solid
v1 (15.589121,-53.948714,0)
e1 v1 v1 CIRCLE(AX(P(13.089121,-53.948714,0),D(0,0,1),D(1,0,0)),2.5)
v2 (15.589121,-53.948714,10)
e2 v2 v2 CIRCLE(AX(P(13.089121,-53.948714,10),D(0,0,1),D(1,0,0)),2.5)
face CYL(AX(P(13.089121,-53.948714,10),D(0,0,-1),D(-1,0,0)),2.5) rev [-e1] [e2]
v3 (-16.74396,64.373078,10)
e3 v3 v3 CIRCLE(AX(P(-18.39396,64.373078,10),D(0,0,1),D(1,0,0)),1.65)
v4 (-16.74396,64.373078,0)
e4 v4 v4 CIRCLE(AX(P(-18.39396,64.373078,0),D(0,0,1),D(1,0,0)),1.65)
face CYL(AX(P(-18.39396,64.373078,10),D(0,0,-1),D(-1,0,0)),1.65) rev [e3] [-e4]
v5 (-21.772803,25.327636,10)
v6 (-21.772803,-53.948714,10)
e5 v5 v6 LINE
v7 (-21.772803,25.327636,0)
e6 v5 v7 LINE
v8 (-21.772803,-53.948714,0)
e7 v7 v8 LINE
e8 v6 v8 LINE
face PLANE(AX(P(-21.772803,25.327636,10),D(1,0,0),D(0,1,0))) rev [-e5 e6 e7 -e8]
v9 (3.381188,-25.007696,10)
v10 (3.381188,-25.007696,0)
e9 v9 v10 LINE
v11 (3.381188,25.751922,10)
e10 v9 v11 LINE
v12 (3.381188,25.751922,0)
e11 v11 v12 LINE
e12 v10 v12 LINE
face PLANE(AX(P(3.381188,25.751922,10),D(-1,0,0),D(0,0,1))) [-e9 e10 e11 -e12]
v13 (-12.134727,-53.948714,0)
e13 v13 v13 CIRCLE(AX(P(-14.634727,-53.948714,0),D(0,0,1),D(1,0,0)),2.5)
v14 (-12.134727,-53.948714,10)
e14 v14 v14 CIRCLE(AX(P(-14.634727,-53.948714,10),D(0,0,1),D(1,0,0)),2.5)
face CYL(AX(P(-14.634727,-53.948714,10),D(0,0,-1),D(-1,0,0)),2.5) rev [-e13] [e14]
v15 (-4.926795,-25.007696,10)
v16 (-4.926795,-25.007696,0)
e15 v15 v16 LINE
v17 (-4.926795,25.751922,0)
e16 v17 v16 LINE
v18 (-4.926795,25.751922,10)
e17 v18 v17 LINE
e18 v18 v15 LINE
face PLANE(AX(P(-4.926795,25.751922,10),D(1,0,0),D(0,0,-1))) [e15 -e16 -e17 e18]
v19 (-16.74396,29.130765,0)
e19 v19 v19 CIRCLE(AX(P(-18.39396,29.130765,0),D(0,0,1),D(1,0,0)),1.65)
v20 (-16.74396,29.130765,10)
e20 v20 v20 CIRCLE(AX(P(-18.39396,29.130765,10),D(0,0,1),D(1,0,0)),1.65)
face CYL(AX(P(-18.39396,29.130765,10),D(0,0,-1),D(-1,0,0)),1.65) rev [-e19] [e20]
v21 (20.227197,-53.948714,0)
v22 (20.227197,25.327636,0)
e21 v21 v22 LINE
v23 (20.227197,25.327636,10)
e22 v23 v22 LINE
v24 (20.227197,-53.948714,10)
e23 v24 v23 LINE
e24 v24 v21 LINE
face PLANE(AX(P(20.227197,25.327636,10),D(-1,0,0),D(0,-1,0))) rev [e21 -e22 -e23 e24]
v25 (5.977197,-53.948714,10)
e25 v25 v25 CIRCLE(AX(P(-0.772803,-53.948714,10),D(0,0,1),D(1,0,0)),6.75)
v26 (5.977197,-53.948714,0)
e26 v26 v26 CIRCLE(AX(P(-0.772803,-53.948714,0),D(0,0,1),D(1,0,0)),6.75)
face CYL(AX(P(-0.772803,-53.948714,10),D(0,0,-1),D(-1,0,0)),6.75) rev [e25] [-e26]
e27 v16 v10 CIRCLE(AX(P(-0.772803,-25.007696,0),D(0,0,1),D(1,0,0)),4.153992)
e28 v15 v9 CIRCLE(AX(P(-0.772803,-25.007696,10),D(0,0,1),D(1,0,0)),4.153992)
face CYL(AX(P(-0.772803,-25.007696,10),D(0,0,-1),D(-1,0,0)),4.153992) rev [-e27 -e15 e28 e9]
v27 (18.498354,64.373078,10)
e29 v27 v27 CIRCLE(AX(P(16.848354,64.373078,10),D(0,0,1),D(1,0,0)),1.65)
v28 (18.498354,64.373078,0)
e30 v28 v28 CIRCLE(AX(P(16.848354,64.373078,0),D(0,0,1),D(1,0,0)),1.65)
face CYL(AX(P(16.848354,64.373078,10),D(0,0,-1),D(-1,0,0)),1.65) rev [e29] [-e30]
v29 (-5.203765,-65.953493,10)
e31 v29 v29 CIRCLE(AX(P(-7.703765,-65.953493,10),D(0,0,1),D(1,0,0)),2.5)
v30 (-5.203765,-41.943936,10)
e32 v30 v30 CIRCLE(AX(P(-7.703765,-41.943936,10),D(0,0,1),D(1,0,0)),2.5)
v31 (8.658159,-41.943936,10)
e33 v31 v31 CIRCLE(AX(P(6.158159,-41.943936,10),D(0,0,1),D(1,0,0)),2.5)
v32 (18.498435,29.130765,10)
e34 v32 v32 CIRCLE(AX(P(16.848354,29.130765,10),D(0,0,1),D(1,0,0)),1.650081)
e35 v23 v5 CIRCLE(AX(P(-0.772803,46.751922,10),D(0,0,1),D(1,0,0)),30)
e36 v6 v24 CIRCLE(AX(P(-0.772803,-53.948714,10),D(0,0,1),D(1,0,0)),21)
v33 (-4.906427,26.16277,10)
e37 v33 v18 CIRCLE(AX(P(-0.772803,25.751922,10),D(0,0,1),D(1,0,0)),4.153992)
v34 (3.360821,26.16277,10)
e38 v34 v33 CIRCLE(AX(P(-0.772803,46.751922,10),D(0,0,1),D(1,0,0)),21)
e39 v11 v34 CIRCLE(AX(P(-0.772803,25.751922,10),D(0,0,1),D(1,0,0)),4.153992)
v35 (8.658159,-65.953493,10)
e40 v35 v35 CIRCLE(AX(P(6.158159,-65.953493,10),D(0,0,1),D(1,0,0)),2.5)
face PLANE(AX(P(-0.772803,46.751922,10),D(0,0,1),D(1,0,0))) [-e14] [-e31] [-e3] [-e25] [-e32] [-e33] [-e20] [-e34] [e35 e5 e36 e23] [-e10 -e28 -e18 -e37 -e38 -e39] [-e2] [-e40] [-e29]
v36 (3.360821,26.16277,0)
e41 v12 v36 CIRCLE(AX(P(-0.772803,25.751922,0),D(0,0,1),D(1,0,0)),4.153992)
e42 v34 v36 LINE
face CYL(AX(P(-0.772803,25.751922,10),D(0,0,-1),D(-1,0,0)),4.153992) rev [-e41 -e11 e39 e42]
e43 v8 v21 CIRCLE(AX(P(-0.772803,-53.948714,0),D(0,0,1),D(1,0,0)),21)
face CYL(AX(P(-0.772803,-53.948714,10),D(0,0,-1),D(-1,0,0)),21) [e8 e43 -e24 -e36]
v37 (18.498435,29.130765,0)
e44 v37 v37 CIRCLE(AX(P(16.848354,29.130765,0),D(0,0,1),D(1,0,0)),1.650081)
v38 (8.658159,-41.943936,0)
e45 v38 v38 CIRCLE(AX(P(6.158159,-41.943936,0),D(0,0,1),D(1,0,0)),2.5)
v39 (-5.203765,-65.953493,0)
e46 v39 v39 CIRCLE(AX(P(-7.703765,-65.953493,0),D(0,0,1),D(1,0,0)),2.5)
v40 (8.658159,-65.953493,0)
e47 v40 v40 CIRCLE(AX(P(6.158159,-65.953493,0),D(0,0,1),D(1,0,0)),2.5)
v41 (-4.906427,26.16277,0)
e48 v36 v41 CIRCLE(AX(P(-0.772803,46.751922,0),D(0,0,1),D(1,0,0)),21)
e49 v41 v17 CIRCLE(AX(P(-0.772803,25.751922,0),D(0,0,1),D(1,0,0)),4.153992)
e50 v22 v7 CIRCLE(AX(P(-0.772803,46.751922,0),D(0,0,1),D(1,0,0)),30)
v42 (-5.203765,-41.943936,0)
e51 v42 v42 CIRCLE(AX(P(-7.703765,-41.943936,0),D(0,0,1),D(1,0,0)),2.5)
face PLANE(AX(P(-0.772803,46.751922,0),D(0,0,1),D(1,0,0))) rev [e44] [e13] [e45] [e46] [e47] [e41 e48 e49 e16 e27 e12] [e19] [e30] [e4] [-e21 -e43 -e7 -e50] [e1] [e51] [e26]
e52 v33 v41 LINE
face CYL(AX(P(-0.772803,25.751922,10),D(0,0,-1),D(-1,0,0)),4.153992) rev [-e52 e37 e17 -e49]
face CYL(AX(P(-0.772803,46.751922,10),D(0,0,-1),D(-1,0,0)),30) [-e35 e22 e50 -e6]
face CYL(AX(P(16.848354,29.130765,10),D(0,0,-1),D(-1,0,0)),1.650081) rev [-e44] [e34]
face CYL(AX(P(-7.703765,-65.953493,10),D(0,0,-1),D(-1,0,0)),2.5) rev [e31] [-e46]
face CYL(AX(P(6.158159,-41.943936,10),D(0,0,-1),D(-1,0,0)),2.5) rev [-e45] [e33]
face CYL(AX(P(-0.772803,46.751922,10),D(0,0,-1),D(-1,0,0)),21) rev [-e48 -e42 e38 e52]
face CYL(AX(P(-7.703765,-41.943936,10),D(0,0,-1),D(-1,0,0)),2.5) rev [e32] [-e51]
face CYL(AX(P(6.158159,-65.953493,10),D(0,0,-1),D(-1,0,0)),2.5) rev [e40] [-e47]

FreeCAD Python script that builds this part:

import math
import FreeCAD as App
import Part
import Sketcher

V = App.Vector
Q = App.Units.Quantity

doc = App.newDocument("Part")
body = doc.addObject("PartDesign::Body", "Body")

# Sketch on XY plane
sketch1 = body.newObject("Sketcher::SketchObject", "Sketch")
sketch1.AttachmentSupport = (doc.getObject("XY_Plane"), [""])
sketch1.MapMode = "FlatFace"
sketch1.addGeometry([
    Part.LineSegment(V(20.227197, -53.948714, 0), V(20.227197, 25.327636, 0)),  # 0
    Part.ArcOfCircle(Part.Circle(V(-0.772803, 46.751922, 0), V(0, 0, 1), 30), math.radians(-45.572996), math.radians(225.572996)),  # 1
    Part.LineSegment(V(-21.772803, 25.327636, 0), V(-21.772803, -53.948714, 0)),  # 2
    Part.ArcOfCircle(Part.Circle(V(-0.772803, -53.948714, 0), V(0, 0, 1), 21), math.radians(180), math.radians(360)),  # 3
    Part.Circle(V(13.089121, -53.948714, 0), V(0, 0, 1), 2.5),  # 4
    Part.Circle(V(6.158159, -65.953493, 0), V(0, 0, 1), 2.5),  # 5
    Part.Circle(V(6.158159, -41.943936, 0), V(0, 0, 1), 2.5),  # 6
    Part.Circle(V(-0.772803, -53.948714, 0), V(0, 0, 1), 6.75),  # 7
    Part.Circle(V(-7.703765, -65.953493, 0), V(0, 0, 1), 2.5),  # 8
    Part.Circle(V(-7.703765, -41.943936, 0), V(0, 0, 1), 2.5),  # 9
    Part.Circle(V(-14.634727, -53.948714, 0), V(0, 0, 1), 2.5),  # 10
    Part.Circle(V(16.848354, 29.130765, 0), V(0, 0, 1), 1.650081),  # 11
    Part.Circle(V(16.848354, 64.373078, 0), V(0, 0, 1), 1.65),  # 12
    Part.LineSegment(V(3.381188, 25.751922, 0), V(3.381188, -25.007696, 0)),  # 13
    Part.ArcOfCircle(Part.Circle(V(-0.772803, -25.007696, 0), V(0, 0, 1), 4.153992), math.radians(180), math.radians(360)),  # 14
    Part.LineSegment(V(-4.926795, -25.007696, 0), V(-4.926795, 25.751922, 0)),  # 15
    Part.ArcOfCircle(Part.Circle(V(-0.772803, 25.751922, 0), V(0, 0, 1), 4.153992), math.radians(174.323906), math.radians(180)),  # 16
    Part.ArcOfCircle(Part.Circle(V(-0.772803, 46.751922, 0), V(0, 0, 1), 21), math.radians(-78.647812), math.radians(258.647812)),  # 17
    Part.ArcOfCircle(Part.Circle(V(-0.772803, 25.751922, 0), V(0, 0, 1), 4.153991), math.radians(0), math.radians(5.676094)),  # 18
    Part.Circle(V(-18.39396, 29.130765, 0), V(0, 0, 1), 1.65),  # 19
    Part.Circle(V(-18.39396, 64.373078, 0), V(0, 0, 1), 1.65),  # 20
], False)
sketch1.addConstraint([
    Sketcher.Constraint("Coincident", 0, 2, 1, 1),
    Sketcher.Constraint("Coincident", 1, 2, 2, 1),
    Sketcher.Constraint("Tangent", 2, 2, 3, 1),
    Sketcher.Constraint("Tangent", 3, 2, 0, 1),
    Sketcher.Constraint("Tangent", 13, 2, 14, 2),
    Sketcher.Constraint("Tangent", 14, 1, 15, 1),
    Sketcher.Constraint("Tangent", 15, 2, 16, 2),
    Sketcher.Constraint("Coincident", 16, 1, 17, 2),
    Sketcher.Constraint("Coincident", 17, 1, 18, 2),
    Sketcher.Constraint("Tangent", 18, 1, 13, 1),
    Sketcher.Constraint("Vertical", 0),
    Sketcher.Constraint("Vertical", 2),
    Sketcher.Constraint("Vertical", 13),
    Sketcher.Constraint("Vertical", 15),
    Sketcher.Constraint("Coincident", 7, 3, 3, 3),
    Sketcher.Constraint("Coincident", 17, 3, 1, 3),
    Sketcher.Constraint("Coincident", 18, 3, 16, 3),
    Sketcher.Constraint("Equal", 4, 5),
    Sketcher.Constraint("Equal", 5, 6),
    Sketcher.Constraint("Equal", 6, 8),
    Sketcher.Constraint("Equal", 8, 9),
    Sketcher.Constraint("Equal", 9, 10),
    Sketcher.Constraint("Equal", 14, 16),
    Sketcher.Constraint("Equal", 3, 17),
    Sketcher.Constraint("Equal", 12, 19),
    Sketcher.Constraint("Equal", 19, 20),
    Sketcher.Constraint("Horizontal", 3, 3, 4, 3),
    Sketcher.Constraint("Horizontal", 5, 3, 8, 3),
    Sketcher.Constraint("Horizontal", 6, 3, 9, 3),
    Sketcher.Constraint("Horizontal", 7, 3, 10, 3),
    Sketcher.Constraint("Horizontal", 11, 3, 19, 3),
    Sketcher.Constraint("Horizontal", 12, 3, 20, 3),
    Sketcher.Constraint("Horizontal", 0, 2, 1, 2),
    Sketcher.Constraint("Horizontal", 16, 1, 17, 1),
    Sketcher.Constraint("Vertical", 5, 3, 6, 3),
    Sketcher.Constraint("Vertical", 8, 3, 9, 3),
    Sketcher.Constraint("Vertical", 11, 3, 12, 3),
    Sketcher.Constraint("Vertical", 19, 3, 20, 3),
    Sketcher.Constraint("Diameter", 4, Q("5 mm")),
    Sketcher.Constraint("Radius", 1, Q("30 mm")),
    Sketcher.Constraint("Radius", 3, Q("21 mm")),
    Sketcher.Constraint("Diameter", 7, Q("13.5 mm")),
    Sketcher.Constraint("Diameter", 12, Q("3.3 mm")),
    Sketcher.Constraint("DistanceY", 16, 3, 1, 3, Q("21 mm")),
    Sketcher.Constraint("Diameter", 11, Q("3.300162 mm")),
    Sketcher.Constraint("Radius", 14, Q("4.153992 mm")),
    Sketcher.Constraint("DistanceY", 0, 1, 0, 2, Q("79.27635 mm")),
    Sketcher.Constraint("DistanceY", 6, 3, 11, 3, Q("71.0747 mm")),
    Sketcher.Constraint("DistanceY", 13, 2, 13, 1, Q("50.759617 mm")),
    Sketcher.Constraint("DistanceY", -1, 1, 1, 3, Q("46.751922 mm")),
    Sketcher.Constraint("DistanceX", -1, 1, 4, 3, Q("13.089121 mm")),
    Sketcher.Constraint("DistanceX", -1, 1, 5, 3, Q("6.158159 mm")),
    Sketcher.Constraint("DistanceY", -1, 1, 12, 3, Q("64.373078 mm")),
    Sketcher.Constraint("DistanceX", 19, 3, -1, 1, Q("18.39396 mm")),
    Sketcher.Constraint("DistanceX", -1, 1, 13, 2, Q("3.381188 mm")),
    Sketcher.Constraint("DistanceY", 5, 3, 3, 3, Q("12.004779 mm")),
    Sketcher.Constraint("DistanceY", 3, 3, 6, 3, Q("12.004779 mm")),
    Sketcher.Constraint("DistanceX", 9, 3, 11, 3, Q("24.552119 mm")),
    Sketcher.Constraint("DistanceX", 9, 3, 14, 1, Q("2.776971 mm")),
    Sketcher.Constraint("DistanceX", 10, 3, -1, 1, Q("14.634727 mm")),
])
pad1 = body.newObject("PartDesign::Pad", "Pad")
pad1.Profile = sketch1
pad1.Length = 10

doc.recompute()
